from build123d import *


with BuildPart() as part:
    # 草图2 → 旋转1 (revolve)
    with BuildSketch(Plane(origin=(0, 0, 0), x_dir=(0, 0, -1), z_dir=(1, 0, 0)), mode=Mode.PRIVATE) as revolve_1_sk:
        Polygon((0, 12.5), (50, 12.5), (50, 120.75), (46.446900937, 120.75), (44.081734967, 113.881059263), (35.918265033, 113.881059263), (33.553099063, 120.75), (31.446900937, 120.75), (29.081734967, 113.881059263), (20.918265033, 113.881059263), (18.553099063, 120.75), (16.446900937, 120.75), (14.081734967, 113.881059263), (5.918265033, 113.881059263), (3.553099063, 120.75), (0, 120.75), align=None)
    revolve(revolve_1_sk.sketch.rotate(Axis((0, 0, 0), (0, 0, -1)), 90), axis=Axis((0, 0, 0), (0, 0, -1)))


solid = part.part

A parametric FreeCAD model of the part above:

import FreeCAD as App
import Part
import Sketcher
Q = App.Units.Quantity

doc = App.newDocument("Part")
params = doc.addObject("Spreadsheet::Sheet", "Params")
for row, (alias, value) in enumerate([
    ("sketch1_height", "50 mm"),
    ("sketch1_width", "108.25 mm"),
    ("revolution_angle", "360 deg"),
], start=1):
    params.set(f"A{row}", alias)
    params.set(f"B{row}", "=" + value)
    params.setAlias(f"B{row}", alias)

body = doc.addObject("PartDesign::Body", "Body")

sketch1 = doc.addObject("Sketcher::SketchObject", "Sketch")
body.addObject(sketch1)
sketch1.AttachmentSupport = (doc.YZ_Plane, [""])
sketch1.MapMode = "FlatFace"
sketch1.addGeometry([
    Part.LineSegment(App.Vector(12.5, 0, 0), App.Vector(12.5, -50, 0)),
    Part.LineSegment(App.Vector(12.5, -50, 0), App.Vector(120.8, -50, 0)),
    Part.LineSegment(App.Vector(120.8, -50, 0), App.Vector(120.8, -46.4, 0)),
    Part.LineSegment(App.Vector(120.8, -46.4, 0), App.Vector(113.9, -44.1, 0)),
    Part.LineSegment(App.Vector(113.9, -44.1, 0), App.Vector(113.9, -35.9, 0)),
    Part.LineSegment(App.Vector(113.9, -35.9, 0), App.Vector(120.8, -33.6, 0)),
    Part.LineSegment(App.Vector(120.8, -33.6, 0), App.Vector(120.8, -31.4, 0)),
    Part.LineSegment(App.Vector(120.8, -31.4, 0), App.Vector(113.9, -29.1, 0)),
    Part.LineSegment(App.Vector(113.9, -29.1, 0), App.Vector(113.9, -20.9, 0)),
    Part.LineSegment(App.Vector(113.9, -20.9, 0), App.Vector(120.8, -18.6, 0)),
    Part.LineSegment(App.Vector(120.8, -18.6, 0), App.Vector(120.8, -16.4, 0)),
    Part.LineSegment(App.Vector(120.8, -16.4, 0), App.Vector(113.9, -14.1, 0)),
    Part.LineSegment(App.Vector(113.9, -14.1, 0), App.Vector(113.9, -5.9, 0)),
    Part.LineSegment(App.Vector(113.9, -5.9, 0), App.Vector(120.8, -3.6, 0)),
    Part.LineSegment(App.Vector(120.8, -3.6, 0), App.Vector(120.8, 0, 0)),
    Part.LineSegment(App.Vector(120.8, 0, 0), App.Vector(12.5, 0, 0)),
], False)
sketch1.addConstraint([
    Sketcher.Constraint("Coincident", 0, 2, 1, 1),
    Sketcher.Constraint("Coincident", 1, 2, 2, 1),
    Sketcher.Constraint("Coincident", 2, 2, 3, 1),
    Sketcher.Constraint("Coincident", 3, 2, 4, 1),
    Sketcher.Constraint("Coincident", 4, 2, 5, 1),
    Sketcher.Constraint("Coincident", 5, 2, 6, 1),
    Sketcher.Constraint("Coincident", 6, 2, 7, 1),
    Sketcher.Constraint("Coincident", 7, 2, 8, 1),
    Sketcher.Constraint("Coincident", 8, 2, 9, 1),
    Sketcher.Constraint("Coincident", 9, 2, 10, 1),
    Sketcher.Constraint("Coincident", 10, 2, 11, 1),
    Sketcher.Constraint("Coincident", 11, 2, 12, 1),
    Sketcher.Constraint("Coincident", 12, 2, 13, 1),
    Sketcher.Constraint("Coincident", 13, 2, 14, 1),
    Sketcher.Constraint("Coincident", 14, 2, 15, 1),
    Sketcher.Constraint("Coincident", 15, 2, 0, 1),
    Sketcher.Constraint("Vertical", 0),
    Sketcher.Constraint("Horizontal", 1),
    Sketcher.Constraint("Vertical", 2),
    Sketcher.Constraint("Vertical", 4),
    Sketcher.Constraint("Vertical", 6),
    Sketcher.Constraint("Vertical", 8),
    Sketcher.Constraint("Vertical", 10),
    Sketcher.Constraint("Vertical", 12),
    Sketcher.Constraint("Vertical", 14),
    Sketcher.Constraint("Horizontal", 15),
    Sketcher.Constraint("PointOnObject", 14, 2, -1),
    Sketcher.Constraint("Parallel", 3, 7),
    Sketcher.Constraint("Parallel", 5, 9),
    Sketcher.Constraint("Parallel", 7, 11),
    Sketcher.Constraint("Parallel", 9, 13),
    Sketcher.Constraint("Vertical", 2, 2, 5, 2),
    Sketcher.Constraint("Vertical", 4, 2, 7, 2),
    Sketcher.Constraint("Vertical", 6, 2, 9, 2),
    Sketcher.Constraint("Vertical", 8, 2, 11, 2),
    Sketcher.Constraint("Vertical", 10, 2, 13, 2),
    Sketcher.Constraint("Equal", 4, 8),
    Sketcher.Constraint("Equal", 6, 10),
    Sketcher.Constraint("Equal", 8, 12),
    Sketcher.Constraint("Equal", 2, 14),
    Sketcher.Constraint("Equal", 3, 5),
    Sketcher.Constraint("DistanceY", 0, 2, 0, 1, 50.0),
    Sketcher.Constraint("Angle", 3, Q("161 deg")),
    Sketcher.Constraint("DistanceY", 2, 2, 6, 2, 15.0),
    Sketcher.Constraint("DistanceX", 1, 1, 1, 2, 108.25),
    Sketcher.Constraint("DistanceX", -1, 1, 0, 2, 12.5),
    Sketcher.Constraint("DistanceY", 2, 1, 2, 2, 3.553099),
    Sketcher.Constraint("DistanceY", 4, 1, 4, 2, 8.16347),
])
sketch1.setExpression("Constraints[41]", "Params.sketch1_height")
sketch1.setExpression("Constraints[44]", "Params.sketch1_width")
revolution = doc.addObject("PartDesign::Revolution", "Revolution")
body.addObject(revolution)
revolution.Profile = sketch1
revolution.ReferenceAxis = (sketch1, ["V_Axis"])
revolution.setExpression("Angle", "Params.revolution_angle")

doc.recompute()
